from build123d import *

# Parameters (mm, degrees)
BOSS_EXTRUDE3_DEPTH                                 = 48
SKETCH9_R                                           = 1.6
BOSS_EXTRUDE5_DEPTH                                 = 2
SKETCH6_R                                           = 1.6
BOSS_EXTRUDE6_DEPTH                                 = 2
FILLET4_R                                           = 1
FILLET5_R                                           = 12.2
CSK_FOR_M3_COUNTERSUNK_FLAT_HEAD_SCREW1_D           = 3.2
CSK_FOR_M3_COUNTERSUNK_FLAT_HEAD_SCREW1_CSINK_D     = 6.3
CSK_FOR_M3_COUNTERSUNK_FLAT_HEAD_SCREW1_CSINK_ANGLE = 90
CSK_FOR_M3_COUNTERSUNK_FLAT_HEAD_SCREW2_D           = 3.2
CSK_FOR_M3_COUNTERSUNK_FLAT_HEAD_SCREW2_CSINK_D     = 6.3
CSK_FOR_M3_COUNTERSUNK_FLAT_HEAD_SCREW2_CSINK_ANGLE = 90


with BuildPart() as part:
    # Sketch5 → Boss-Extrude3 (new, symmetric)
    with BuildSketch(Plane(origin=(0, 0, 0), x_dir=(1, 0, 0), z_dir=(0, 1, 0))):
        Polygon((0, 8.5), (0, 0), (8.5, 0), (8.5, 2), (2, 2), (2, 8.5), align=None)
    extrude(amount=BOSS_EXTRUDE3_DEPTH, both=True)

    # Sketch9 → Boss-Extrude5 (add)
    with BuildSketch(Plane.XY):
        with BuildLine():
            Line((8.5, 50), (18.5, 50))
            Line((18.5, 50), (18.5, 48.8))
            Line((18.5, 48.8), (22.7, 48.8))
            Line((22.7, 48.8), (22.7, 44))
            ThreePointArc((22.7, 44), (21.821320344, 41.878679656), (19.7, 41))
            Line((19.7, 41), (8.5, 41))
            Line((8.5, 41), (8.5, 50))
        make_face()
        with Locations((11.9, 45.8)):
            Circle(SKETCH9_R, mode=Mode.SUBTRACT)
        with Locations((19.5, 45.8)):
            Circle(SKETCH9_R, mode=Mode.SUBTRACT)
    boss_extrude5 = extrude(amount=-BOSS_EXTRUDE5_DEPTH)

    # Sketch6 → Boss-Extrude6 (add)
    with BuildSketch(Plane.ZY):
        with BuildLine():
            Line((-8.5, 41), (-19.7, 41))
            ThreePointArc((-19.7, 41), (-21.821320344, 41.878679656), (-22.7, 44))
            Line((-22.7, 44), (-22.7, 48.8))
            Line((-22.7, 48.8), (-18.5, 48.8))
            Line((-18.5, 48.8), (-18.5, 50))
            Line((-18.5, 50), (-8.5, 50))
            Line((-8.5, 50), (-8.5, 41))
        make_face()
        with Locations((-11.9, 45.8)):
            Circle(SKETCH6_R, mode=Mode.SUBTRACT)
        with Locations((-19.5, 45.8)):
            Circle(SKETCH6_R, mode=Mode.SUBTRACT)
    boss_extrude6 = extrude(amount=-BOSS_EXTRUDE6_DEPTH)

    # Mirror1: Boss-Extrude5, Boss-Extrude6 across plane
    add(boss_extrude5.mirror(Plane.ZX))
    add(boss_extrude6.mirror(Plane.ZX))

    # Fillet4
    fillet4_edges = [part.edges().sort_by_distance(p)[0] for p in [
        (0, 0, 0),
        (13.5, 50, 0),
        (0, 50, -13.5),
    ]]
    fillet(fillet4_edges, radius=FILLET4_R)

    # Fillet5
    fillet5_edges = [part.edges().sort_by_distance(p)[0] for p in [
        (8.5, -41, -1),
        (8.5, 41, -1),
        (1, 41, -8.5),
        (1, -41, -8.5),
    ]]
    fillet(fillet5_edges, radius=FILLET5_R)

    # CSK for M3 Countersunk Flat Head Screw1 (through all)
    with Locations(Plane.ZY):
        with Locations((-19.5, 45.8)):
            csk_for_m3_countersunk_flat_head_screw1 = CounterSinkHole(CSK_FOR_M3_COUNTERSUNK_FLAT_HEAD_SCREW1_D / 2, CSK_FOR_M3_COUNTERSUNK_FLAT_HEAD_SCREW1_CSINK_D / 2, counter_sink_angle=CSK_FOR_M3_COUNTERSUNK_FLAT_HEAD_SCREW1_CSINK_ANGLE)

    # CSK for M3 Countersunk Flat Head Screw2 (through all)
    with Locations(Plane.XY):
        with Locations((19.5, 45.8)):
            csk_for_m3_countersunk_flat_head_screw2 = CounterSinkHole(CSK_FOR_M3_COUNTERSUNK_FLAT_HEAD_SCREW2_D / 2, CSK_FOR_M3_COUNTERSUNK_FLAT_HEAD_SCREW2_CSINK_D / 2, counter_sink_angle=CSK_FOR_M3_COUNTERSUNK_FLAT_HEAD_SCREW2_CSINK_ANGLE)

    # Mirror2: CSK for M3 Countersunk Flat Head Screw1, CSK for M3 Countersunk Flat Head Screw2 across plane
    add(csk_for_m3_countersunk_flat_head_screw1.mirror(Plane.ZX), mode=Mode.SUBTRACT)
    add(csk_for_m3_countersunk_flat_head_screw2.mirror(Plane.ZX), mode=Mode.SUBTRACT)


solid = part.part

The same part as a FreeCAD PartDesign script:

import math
import FreeCAD as App
import Part
import Sketcher

V = App.Vector
Q = App.Units.Quantity


def edges_at(feature, points):
    """Names of the edges that pass closest to the given points."""
    edges = feature.Shape.Edges
    near = lambda p: min(range(len(edges)), key=lambda i: edges[i].distToShape(Part.Vertex(*p))[0])
    return sorted({f"Edge{near(p) + 1}" for p in points})

doc = App.newDocument("Part")
body = doc.addObject("PartDesign::Body", "Body")

sketch1 = body.newObject("Sketcher::SketchObject", "Sketch")
sketch1.AttachmentSupport = (doc.getObject("XZ_Plane"), [""])
sketch1.MapMode = "FlatFace"
sketch1.addGeometry([
    Part.LineSegment(V(0, -8.5, 0), V(0, 0, 0)),
    Part.LineSegment(V(0, 0, 0), V(8.5, 0, 0)),
    Part.LineSegment(V(8.5, 0, 0), V(8.5, -2, 0)),
    Part.LineSegment(V(8.5, -2, 0), V(2, -2, 0)),
    Part.LineSegment(V(2, -2, 0), V(2, -8.5, 0)),
    Part.LineSegment(V(2, -8.5, 0), V(0, -8.5, 0)),
], False)
sketch1.addConstraint([
    Sketcher.Constraint("Coincident", 0, 2, 1, 1),
    Sketcher.Constraint("Coincident", 1, 2, 2, 1),
    Sketcher.Constraint("Coincident", 2, 2, 3, 1),
    Sketcher.Constraint("Coincident", 3, 2, 4, 1),
    Sketcher.Constraint("Coincident", 4, 2, 5, 1),
    Sketcher.Constraint("Coincident", 5, 2, 0, 1),
    Sketcher.Constraint("Vertical", 0),
    Sketcher.Constraint("Horizontal", 1),
    Sketcher.Constraint("Vertical", 2),
    Sketcher.Constraint("Horizontal", 3),
    Sketcher.Constraint("Vertical", 4),
    Sketcher.Constraint("Horizontal", 5),
    Sketcher.Constraint("Coincident", 0, 2, -1, 1),
    Sketcher.Constraint("Equal", 1, 0),
    Sketcher.Constraint("Equal", 5, 2),
    Sketcher.Constraint("DistanceX", 5, 2, 5, 1, Q("2 mm")),
    Sketcher.Constraint("DistanceX", 1, 1, 1, 2, Q("8.5 mm")),
])
pad1 = body.newObject("PartDesign::Pad", "Pad")
pad1.Profile = sketch1
pad1.Length = 96
pad1.Midplane = True

sketch2 = body.newObject("Sketcher::SketchObject", "Sketch001")
sketch2.AttachmentSupport = (doc.getObject("XY_Plane"), [""])
sketch2.MapMode = "FlatFace"
sketch2.addGeometry([
    Part.LineSegment(V(18.5, 50, 0), V(8.5, 50, 0)),
    Part.LineSegment(V(8.5, 50, 0), V(8.5, 41, 0)),
    Part.LineSegment(V(8.5, 41, 0), V(19.7, 41, 0)),
    Part.ArcOfCircle(Part.Circle(V(19.7, 44, 0), V(0, 0, 1), 3), math.radians(-90), math.radians(0)),
    Part.LineSegment(V(22.7, 44, 0), V(22.7, 48.8, 0)),
    Part.LineSegment(V(22.7, 48.8, 0), V(18.5, 48.8, 0)),
    Part.LineSegment(V(18.5, 48.8, 0), V(18.5, 50, 0)),
    Part.Circle(V(19.5, 45.8, 0), V(0, 0, 1), 1.6),
    Part.Circle(V(11.9, 45.8, 0), V(0, 0, 1), 1.6),
], False)
sketch2.addConstraint([
    Sketcher.Constraint("Coincident", 0, 2, 1, 1),
    Sketcher.Constraint("Coincident", 1, 2, 2, 1),
    Sketcher.Constraint("Tangent", 2, 2, 3, 1),
    Sketcher.Constraint("Tangent", 3, 2, 4, 1),
    Sketcher.Constraint("Coincident", 4, 2, 5, 1),
    Sketcher.Constraint("Coincident", 5, 2, 6, 1),
    Sketcher.Constraint("Coincident", 6, 2, 0, 1),
    Sketcher.Constraint("Horizontal", 0),
    Sketcher.Constraint("Vertical", 1),
    Sketcher.Constraint("Horizontal", 2),
    Sketcher.Constraint("Vertical", 4),
    Sketcher.Constraint("Horizontal", 5),
    Sketcher.Constraint("Vertical", 6),
    Sketcher.Constraint("Equal", 7, 8),
    Sketcher.Constraint("Horizontal", 7, 3, 8, 3),
    Sketcher.Constraint("Radius", 3, Q("3 mm")),
    Sketcher.Constraint("Diameter", 7, Q("3.2 mm")),
    Sketcher.Constraint("DistanceX", 0, 2, 0, 1, Q("10 mm")),
    Sketcher.Constraint("DistanceY", 1, 2, 1, 1, Q("9 mm")),
    Sketcher.Constraint("DistanceX", 2, 1, 2, 2, Q("11.2 mm")),
    Sketcher.Constraint("DistanceY", 4, 1, 4, 2, Q("4.8 mm")),
    Sketcher.Constraint("DistanceY", -1, 1, 3, 3, Q("44 mm")),
    Sketcher.Constraint("DistanceX", 0, 2, 7, 3, Q("11 mm")),
    Sketcher.Constraint("DistanceY", 7, 3, 4, 2, Q("3 mm")),
    Sketcher.Constraint("DistanceX", -1, 1, 3, 3, Q("19.7 mm")),
    Sketcher.Constraint("DistanceX", -1, 1, 8, 3, Q("11.9 mm")),
])
pad2 = body.newObject("PartDesign::Pad", "Pad001")
pad2.Profile = sketch2
pad2.Length = 2
pad2.Reversed = True

sketch3 = body.newObject("Sketcher::SketchObject", "Sketch002")
sketch3.AttachmentSupport = (doc.getObject("YZ_Plane"), [""])
sketch3.MapMode = "FlatFace"
sketch3.addGeometry([
    Part.LineSegment(V(41, -19.7, 0), V(41, -8.5, 0)),
    Part.LineSegment(V(41, -8.5, 0), V(50, -8.5, 0)),
    Part.LineSegment(V(50, -8.5, 0), V(50, -18.5, 0)),
    Part.LineSegment(V(50, -18.5, 0), V(48.8, -18.5, 0)),
    Part.LineSegment(V(48.8, -18.5, 0), V(48.8, -22.7, 0)),
    Part.LineSegment(V(48.8, -22.7, 0), V(44, -22.7, 0)),
    Part.ArcOfCircle(Part.Circle(V(44, -19.7, 0), V(0, 0, 1), 3), math.radians(180), math.radians(270)),
    Part.Circle(V(45.8, -11.9, 0), V(0, 0, 1), 1.6),
    Part.Circle(V(45.8, -19.5, 0), V(0, 0, 1), 1.6),
], False)
sketch3.addConstraint([
    Sketcher.Constraint("Coincident", 0, 2, 1, 1),
    Sketcher.Constraint("Coincident", 1, 2, 2, 1),
    Sketcher.Constraint("Coincident", 2, 2, 3, 1),
    Sketcher.Constraint("Coincident", 3, 2, 4, 1),
    Sketcher.Constraint("Coincident", 4, 2, 5, 1),
    Sketcher.Constraint("Tangent", 5, 2, 6, 2),
    Sketcher.Constraint("Tangent", 6, 1, 0, 1),
    Sketcher.Constraint("Vertical", 0),
    Sketcher.Constraint("Horizontal", 1),
    Sketcher.Constraint("Vertical", 2),
    Sketcher.Constraint("Horizontal", 3),
    Sketcher.Constraint("Vertical", 4),
    Sketcher.Constraint("Horizontal", 5),
    Sketcher.Constraint("Equal", 7, 8),
    Sketcher.Constraint("Vertical", 7, 3, 8, 3),
    Sketcher.Constraint("Radius", 6, Q("3 mm")),
    Sketcher.Constraint("Diameter", 7, Q("3.2 mm")),
    Sketcher.Constraint("DistanceX", 1, 1, 1, 2, Q("9 mm")),
    Sketcher.Constraint("DistanceY", 2, 2, 2, 1, Q("10 mm")),
    Sketcher.Constraint("DistanceX", 3, 2, 3, 1, Q("1.2 mm")),
    Sketcher.Constraint("DistanceY", 0, 1, 0, 2, Q("11.2 mm")),
    Sketcher.Constraint("DistanceX", -1, 1, 6, 3, Q("44 mm")),
    Sketcher.Constraint("DistanceY", 8, 3, 0, 2, Q("11 mm")),
    Sketcher.Constraint("DistanceX", 8, 3, 3, 2, Q("3 mm")),
    Sketcher.Constraint("DistanceY", 6, 3, -1, 1, Q("19.7 mm")),
    Sketcher.Constraint("DistanceY", 7, 3, -1, 1, Q("11.9 mm")),
])
pad3 = body.newObject("PartDesign::Pad", "Pad002")
pad3.Profile = sketch3
pad3.Length = 2
doc.recompute()

mirrored = body.newObject("PartDesign::Mirrored", "Mirrored")
mirrored.Originals = [pad2, pad3]
mirrored.MirrorPlane = (doc.getObject("XZ_Plane"), [""])
body.Tip = mirrored
doc.recompute()

fillet = body.newObject("PartDesign::Fillet", "Fillet")
fillet.Base = (mirrored, edges_at(mirrored, [(0, 0, 0), (13.5, 50, 0), (0, 50, -13.5)]))
fillet.Radius = 1
doc.recompute()

fillet2 = body.newObject("PartDesign::Fillet", "Fillet001")
fillet2.Base = (fillet, edges_at(fillet, [
    (8.5, -41, -1),
    (8.5, 41, -1),
    (1, 41, -8.5),
    (1, -41, -8.5),
]))
fillet2.Radius = 12.2

sketch4 = body.newObject("Sketcher::SketchObject", "Sketch003")
sketch4.AttachmentSupport = (doc.getObject("YZ_Plane"), [""])
sketch4.MapMode = "FlatFace"
sketch4.addGeometry(Part.Circle(V(45.8, -19.5, 0), V(0, 0, 1), 1.6), False)
sketch4.addConstraint([
    Sketcher.Constraint("Diameter", 0, Q("3.2 mm")),
    Sketcher.Constraint("DistanceX", -1, 1, 0, 3, Q("45.8 mm")),
    Sketcher.Constraint("DistanceY", 0, 3, -1, 1, Q("19.5 mm")),
])
doc.recompute()
hole = body.newObject("PartDesign::Hole", "Hole")
hole.Profile = sketch4
hole.ThreadType = "None"
hole.Diameter = 3.2
hole.DepthType = "ThroughAll"
hole.HoleCutType = "Countersink"
hole.HoleCutDiameter = 6.3
hole.HoleCutCountersinkAngle = 90
hole.Reversed = True

sketch5 = body.newObject("Sketcher::SketchObject", "Sketch004")
sketch5.AttachmentSupport = (doc.getObject("XY_Plane"), [""])
sketch5.MapMode = "FlatFace"
sketch5.addGeometry(Part.Circle(V(19.5, 45.8, 0), V(0, 0, 1), 1.6), False)
sketch5.addConstraint([
    Sketcher.Constraint("Diameter", 0, Q("3.2 mm")),
    Sketcher.Constraint("DistanceX", -1, 1, 0, 3, Q("19.5 mm")),
    Sketcher.Constraint("DistanceY", -1, 1, 0, 3, Q("45.8 mm")),
])
doc.recompute()
hole2 = body.newObject("PartDesign::Hole", "Hole001")
hole2.Profile = sketch5
hole2.ThreadType = "None"
hole2.Diameter = 3.2
hole2.DepthType = "ThroughAll"
hole2.HoleCutType = "Countersink"
hole2.HoleCutDiameter = 6.3
hole2.HoleCutCountersinkAngle = 90
doc.recompute()

mirrored2 = body.newObject("PartDesign::Mirrored", "Mirrored001")
mirrored2.Originals = [hole, hole2]
mirrored2.MirrorPlane = (doc.getObject("XZ_Plane"), [""])
body.Tip = mirrored2

doc.recompute()
